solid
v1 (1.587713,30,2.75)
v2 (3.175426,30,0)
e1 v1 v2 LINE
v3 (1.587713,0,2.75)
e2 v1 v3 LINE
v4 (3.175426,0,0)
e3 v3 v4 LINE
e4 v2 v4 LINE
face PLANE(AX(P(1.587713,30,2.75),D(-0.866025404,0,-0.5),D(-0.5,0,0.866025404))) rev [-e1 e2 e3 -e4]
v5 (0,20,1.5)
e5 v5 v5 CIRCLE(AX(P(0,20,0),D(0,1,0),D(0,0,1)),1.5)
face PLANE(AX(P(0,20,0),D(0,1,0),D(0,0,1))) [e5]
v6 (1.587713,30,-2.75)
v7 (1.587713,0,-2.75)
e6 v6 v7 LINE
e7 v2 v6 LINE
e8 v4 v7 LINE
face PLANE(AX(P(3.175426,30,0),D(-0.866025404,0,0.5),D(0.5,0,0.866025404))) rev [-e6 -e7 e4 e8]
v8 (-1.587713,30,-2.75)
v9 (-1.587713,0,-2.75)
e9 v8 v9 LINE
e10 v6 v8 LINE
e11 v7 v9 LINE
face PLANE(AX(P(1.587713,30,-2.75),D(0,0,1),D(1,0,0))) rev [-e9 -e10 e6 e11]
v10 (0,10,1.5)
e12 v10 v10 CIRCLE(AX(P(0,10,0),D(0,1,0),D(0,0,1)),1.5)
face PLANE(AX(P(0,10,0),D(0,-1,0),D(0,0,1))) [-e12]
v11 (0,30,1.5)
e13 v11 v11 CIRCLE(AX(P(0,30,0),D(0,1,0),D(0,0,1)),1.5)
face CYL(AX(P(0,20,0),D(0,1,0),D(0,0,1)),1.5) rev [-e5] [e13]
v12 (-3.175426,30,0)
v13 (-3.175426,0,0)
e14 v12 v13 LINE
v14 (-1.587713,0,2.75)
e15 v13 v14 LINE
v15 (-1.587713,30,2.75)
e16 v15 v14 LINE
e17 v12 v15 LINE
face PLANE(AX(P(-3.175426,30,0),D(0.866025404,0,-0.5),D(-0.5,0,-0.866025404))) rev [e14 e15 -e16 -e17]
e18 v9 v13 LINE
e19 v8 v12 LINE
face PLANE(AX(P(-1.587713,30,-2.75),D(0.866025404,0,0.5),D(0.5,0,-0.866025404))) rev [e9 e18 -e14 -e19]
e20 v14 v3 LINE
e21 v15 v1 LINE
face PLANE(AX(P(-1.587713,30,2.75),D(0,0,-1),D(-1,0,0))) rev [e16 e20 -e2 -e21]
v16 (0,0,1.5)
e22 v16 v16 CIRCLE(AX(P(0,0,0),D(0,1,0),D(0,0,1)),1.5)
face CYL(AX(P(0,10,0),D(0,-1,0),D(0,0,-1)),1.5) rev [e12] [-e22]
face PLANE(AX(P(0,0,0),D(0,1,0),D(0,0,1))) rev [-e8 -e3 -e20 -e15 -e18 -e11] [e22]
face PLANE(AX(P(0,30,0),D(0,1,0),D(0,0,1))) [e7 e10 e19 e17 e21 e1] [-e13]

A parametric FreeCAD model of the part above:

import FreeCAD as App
import Part
import Sketcher

V = App.Vector
Q = App.Units.Quantity


def add_polygon(sketch, points):
    """Adds a closed chain of lines whose ends are joined by coincident constraints."""
    first, n = sketch.GeometryCount, len(points)
    for a, b in zip(points, points[1:] + points[:1]):
        sketch.addGeometry(Part.LineSegment(App.Vector(*a, 0), App.Vector(*b, 0)), False)
    for i in range(n):
        sketch.addConstraint(Sketcher.Constraint("Coincident", first + i, 2, first + (i + 1) % n, 1))

doc = App.newDocument("Part")
params = doc.addObject("Spreadsheet::Sheet", "Params")
for row, (alias, value) in enumerate([
    ("pad1_length", "30 mm"),
    ("sketch2_diameter", "3 mm"),
    ("pocket1_length", "10 mm"),
], start=1):
    params.set(f"A{row}", alias)
    params.set(f"B{row}", "=" + value)
    params.setAlias(f"B{row}", alias)

body = doc.addObject("PartDesign::Body", "Body")

# Sketch on XZ plane
sketch1 = doc.addObject("Sketcher::SketchObject", "Sketch")
body.addObject(sketch1)
sketch1.AttachmentSupport = (doc.XZ_Plane, [""])
sketch1.MapMode = "FlatFace"
add_polygon(sketch1, [(3.2, 0), (1.6, -2.8), (-1.6, -2.8), (-3.2, 0), (-1.6, 2.8), (1.6, 2.8)])  # lines 0-5
sketch1.addConstraint([
    Sketcher.Constraint("Horizontal", 1),
    Sketcher.Constraint("Horizontal", 4),
    Sketcher.Constraint("Symmetric", 0, 2, 3, 2, -1, 1),
    Sketcher.Constraint("Symmetric", 2, 2, 5, 2, -1, 1),
    Sketcher.Constraint("PointOnObject", 2, 2, -1),
    Sketcher.Constraint("Parallel", 2, 5),
    Sketcher.Constraint("Vertical", 1, 2, 3, 2),
    Sketcher.Constraint("Angle", 0, Q("-120 deg")),
    Sketcher.Constraint("DistanceY", 1, 2, 3, 2, Q("5.5 mm")),
    Sketcher.Constraint("DistanceX", 1, 2, 1, 1, Q("3.175426 mm")),
])
pad1 = doc.addObject("PartDesign::Pad", "Pad")
body.addObject(pad1)
pad1.Profile = sketch1
pad1.setExpression("Length", "Params.pad1_length")
pad1.Reversed = True

# Sketch on XZ plane
sketch2 = doc.addObject("Sketcher::SketchObject", "Sketch001")
body.addObject(sketch2)
sketch2.AttachmentSupport = (doc.XZ_Plane, [""])
sketch2.MapMode = "FlatFace"
sketch2.AttachmentOffset = App.Placement(V(0, 0, -30), App.Rotation())
sketch2.addGeometry(Part.Circle(V(0, 0, 0), V(0, 0, 1), 1.5), False)
sketch2.addConstraint([
    Sketcher.Constraint("Coincident", 0, 3, -1, 1),
    Sketcher.Constraint("Diameter", 0, Q("3 mm")),
])
sketch2.setExpression("Constraints[1]", "Params.sketch2_diameter")
pocket1 = doc.addObject("PartDesign::Pocket", "Pocket")
body.addObject(pocket1)
pocket1.Profile = sketch2
pocket1.setExpression("Length", "Params.pocket1_length")
pocket1.Reversed = True
doc.recompute()

datumplane = doc.addObject("PartDesign::Plane", "DatumPlane")
body.addObject(datumplane)
datumplane.AttachmentSupport = (doc.XZ_Plane, [""])
datumplane.MapMode = "FlatFace"
datumplane.AttachmentOffset = App.Placement(V(0, 0, -15), App.Rotation())
mirrored = doc.addObject("PartDesign::Mirrored", "Mirrored")
body.addObject(mirrored)
mirrored.Originals = [pocket1]
mirrored.MirrorPlane = (datumplane, [""])
body.Tip = mirrored

doc.recompute()
